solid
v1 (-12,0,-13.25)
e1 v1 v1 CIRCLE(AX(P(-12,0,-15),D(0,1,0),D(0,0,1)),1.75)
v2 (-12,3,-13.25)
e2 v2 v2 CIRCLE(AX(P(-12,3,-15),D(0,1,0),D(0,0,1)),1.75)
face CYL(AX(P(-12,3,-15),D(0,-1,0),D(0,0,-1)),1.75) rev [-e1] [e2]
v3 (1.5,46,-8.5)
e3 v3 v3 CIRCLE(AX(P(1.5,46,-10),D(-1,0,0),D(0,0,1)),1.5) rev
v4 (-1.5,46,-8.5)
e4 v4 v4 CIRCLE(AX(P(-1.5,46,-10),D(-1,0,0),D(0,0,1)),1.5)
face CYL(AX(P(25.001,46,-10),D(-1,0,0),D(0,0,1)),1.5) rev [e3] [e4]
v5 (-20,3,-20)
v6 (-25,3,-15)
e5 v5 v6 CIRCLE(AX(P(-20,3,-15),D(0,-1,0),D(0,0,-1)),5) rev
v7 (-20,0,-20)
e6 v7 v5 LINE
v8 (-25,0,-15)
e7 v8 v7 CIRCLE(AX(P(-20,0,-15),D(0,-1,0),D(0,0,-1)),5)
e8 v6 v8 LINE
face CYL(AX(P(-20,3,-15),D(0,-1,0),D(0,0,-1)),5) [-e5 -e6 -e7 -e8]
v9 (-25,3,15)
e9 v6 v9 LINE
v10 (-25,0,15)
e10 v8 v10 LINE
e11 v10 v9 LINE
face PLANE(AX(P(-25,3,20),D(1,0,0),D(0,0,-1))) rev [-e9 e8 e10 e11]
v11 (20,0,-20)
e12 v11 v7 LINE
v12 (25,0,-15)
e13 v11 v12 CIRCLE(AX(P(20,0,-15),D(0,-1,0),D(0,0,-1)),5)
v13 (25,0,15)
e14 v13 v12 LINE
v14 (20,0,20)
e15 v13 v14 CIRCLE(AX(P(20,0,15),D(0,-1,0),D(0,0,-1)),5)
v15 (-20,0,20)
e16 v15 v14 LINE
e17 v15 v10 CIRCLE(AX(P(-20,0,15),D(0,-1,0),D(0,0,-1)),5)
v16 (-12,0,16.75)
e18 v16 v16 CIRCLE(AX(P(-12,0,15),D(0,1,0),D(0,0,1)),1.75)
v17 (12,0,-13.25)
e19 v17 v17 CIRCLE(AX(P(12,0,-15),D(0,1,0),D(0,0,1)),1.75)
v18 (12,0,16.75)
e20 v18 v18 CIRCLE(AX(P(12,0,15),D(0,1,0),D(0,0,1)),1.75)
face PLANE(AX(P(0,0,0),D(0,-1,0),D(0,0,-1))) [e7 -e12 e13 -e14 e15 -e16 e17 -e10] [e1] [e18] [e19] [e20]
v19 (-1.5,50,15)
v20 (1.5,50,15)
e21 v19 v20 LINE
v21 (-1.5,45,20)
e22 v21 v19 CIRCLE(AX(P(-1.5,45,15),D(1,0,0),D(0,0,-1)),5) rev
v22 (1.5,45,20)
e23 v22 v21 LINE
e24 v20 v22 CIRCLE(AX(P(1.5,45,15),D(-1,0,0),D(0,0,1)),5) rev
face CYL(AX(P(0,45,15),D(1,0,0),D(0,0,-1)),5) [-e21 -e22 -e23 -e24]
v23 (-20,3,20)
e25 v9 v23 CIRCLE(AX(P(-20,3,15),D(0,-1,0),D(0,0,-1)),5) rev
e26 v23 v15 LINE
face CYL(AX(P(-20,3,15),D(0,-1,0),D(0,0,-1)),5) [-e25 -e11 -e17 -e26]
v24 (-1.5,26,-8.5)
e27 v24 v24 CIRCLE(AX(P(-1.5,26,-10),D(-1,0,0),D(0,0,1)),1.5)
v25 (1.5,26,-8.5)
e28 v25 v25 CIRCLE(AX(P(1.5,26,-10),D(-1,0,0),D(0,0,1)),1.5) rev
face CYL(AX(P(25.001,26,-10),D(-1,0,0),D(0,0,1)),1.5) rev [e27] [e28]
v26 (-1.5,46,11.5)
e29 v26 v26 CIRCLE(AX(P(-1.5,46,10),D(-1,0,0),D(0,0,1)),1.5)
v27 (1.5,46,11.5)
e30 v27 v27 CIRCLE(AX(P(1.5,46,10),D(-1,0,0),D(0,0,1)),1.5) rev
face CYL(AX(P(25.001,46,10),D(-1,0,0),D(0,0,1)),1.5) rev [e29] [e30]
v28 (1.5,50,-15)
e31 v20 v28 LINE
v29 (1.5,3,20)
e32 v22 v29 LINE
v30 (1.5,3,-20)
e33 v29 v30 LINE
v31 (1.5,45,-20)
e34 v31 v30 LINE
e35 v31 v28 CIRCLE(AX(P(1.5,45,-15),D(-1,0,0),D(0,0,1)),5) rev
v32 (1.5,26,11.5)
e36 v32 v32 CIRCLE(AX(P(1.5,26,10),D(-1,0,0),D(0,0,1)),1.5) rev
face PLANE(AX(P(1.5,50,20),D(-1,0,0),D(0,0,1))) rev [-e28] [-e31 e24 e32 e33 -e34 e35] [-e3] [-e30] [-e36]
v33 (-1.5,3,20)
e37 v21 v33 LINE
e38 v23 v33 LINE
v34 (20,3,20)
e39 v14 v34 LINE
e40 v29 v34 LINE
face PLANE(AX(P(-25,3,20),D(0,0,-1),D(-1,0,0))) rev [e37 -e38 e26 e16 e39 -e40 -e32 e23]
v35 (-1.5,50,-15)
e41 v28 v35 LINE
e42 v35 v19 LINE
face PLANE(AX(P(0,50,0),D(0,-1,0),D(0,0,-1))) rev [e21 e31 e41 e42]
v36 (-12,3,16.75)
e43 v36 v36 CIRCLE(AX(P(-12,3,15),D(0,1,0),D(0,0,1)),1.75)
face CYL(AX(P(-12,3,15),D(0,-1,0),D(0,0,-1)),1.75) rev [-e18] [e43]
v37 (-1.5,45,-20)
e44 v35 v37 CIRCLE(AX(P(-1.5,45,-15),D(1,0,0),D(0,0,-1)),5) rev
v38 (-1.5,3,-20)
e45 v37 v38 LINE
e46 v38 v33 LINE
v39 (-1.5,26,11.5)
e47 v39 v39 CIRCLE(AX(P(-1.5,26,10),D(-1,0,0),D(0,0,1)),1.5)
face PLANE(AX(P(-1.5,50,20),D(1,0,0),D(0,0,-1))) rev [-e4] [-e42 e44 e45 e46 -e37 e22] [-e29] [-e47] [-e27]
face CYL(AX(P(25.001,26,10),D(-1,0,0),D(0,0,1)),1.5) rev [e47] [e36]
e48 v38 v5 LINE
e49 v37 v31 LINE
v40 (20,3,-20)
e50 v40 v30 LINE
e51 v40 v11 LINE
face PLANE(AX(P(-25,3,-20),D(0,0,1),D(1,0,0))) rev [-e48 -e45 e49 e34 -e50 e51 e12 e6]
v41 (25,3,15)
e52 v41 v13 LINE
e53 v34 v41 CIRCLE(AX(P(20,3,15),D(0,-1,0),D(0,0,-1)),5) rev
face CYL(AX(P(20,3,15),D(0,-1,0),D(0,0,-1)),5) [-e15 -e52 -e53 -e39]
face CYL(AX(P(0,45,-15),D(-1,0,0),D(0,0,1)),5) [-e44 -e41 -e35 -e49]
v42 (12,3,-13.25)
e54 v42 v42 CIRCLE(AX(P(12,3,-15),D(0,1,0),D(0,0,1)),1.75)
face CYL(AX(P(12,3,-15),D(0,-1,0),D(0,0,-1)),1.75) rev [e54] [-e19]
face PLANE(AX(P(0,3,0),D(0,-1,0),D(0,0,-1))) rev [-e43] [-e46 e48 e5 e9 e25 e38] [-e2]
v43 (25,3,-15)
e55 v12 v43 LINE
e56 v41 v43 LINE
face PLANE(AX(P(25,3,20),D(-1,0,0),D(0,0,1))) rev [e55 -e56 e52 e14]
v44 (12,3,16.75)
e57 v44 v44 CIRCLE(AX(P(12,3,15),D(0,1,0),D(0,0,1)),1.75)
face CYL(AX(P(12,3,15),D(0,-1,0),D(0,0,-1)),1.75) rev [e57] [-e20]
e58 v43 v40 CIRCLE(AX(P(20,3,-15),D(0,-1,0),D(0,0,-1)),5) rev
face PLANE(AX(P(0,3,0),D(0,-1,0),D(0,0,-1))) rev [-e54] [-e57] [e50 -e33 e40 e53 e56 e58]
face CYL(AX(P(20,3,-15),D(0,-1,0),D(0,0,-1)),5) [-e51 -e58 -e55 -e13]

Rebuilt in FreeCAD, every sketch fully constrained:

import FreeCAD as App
import Part
import Sketcher


def edges_at(feature, points):
    """Names of the edges that pass closest to the given points."""
    edges = feature.Shape.Edges
    near = lambda p: min(range(len(edges)), key=lambda i: edges[i].distToShape(Part.Vertex(*p))[0])
    return sorted({f"Edge{near(p) + 1}" for p in points})


def add_polygon(sketch, points):
    """Adds a closed chain of lines whose ends are joined by coincident constraints."""
    first, n = sketch.GeometryCount, len(points)
    for a, b in zip(points, points[1:] + points[:1]):
        sketch.addGeometry(Part.LineSegment(App.Vector(*a, 0), App.Vector(*b, 0)), False)
    for i in range(n):
        sketch.addConstraint(Sketcher.Constraint("Coincident", first + i, 2, first + (i + 1) % n, 1))

doc = App.newDocument("Part")
body = doc.addObject("PartDesign::Body", "Body")

# Sketch on XZ plane
sketch1 = body.newObject("Sketcher::SketchObject", "Sketch")
sketch1.AttachmentSupport = (doc.getObject("XZ_Plane"), [""])
sketch1.MapMode = "FlatFace"
add_polygon(sketch1, [(-25, -20), (-25, 20), (25, 20), (25, -20)])  # lines 0-3
sketch1.addGeometry(Part.Circle(App.Vector(-12, 15, 0), App.Vector(0, 0, 1), 1.8), False)  # 4
sketch1.addGeometry(Part.Circle(App.Vector(12, 15, 0), App.Vector(0, 0, 1), 1.8), False)  # 5
sketch1.addGeometry(Part.Circle(App.Vector(-12, -15, 0), App.Vector(0, 0, 1), 1.8), False)  # 6
sketch1.addGeometry(Part.Circle(App.Vector(12, -15, 0), App.Vector(0, 0, 1), 1.8), False)  # 7
sketch1.addConstraint([
    Sketcher.Constraint("Vertical", 0),
    Sketcher.Constraint("Horizontal", 1),
    Sketcher.Constraint("Vertical", 2),
    Sketcher.Constraint("Horizontal", 3),
    Sketcher.Constraint("Equal", 4, 5),
    Sketcher.Constraint("Equal", 5, 6),
    Sketcher.Constraint("Equal", 6, 7),
    Sketcher.Constraint("Symmetric", 5, 3, 6, 3, -1, 1),
    Sketcher.Constraint("Symmetric", 4, 3, 7, 3, -1, 1),
    Sketcher.Constraint("Symmetric", 0, 2, 2, 2, -1, 1),
    Sketcher.Constraint("Symmetric", 4, 3, 5, 3, -2),
    Sketcher.Constraint("Diameter", 4, 3.5),
    Sketcher.Constraint("DistanceX", 1, 1, 1, 2, 50.0),
    Sketcher.Constraint("DistanceY", 0, 1, 0, 2, 40.0),
    Sketcher.Constraint("DistanceX", 4, 3, -1, 1, 12.0),
    Sketcher.Constraint("DistanceY", -1, 1, 4, 3, 15.0),
])
pad1 = body.newObject("PartDesign::Pad", "Pad")
pad1.Profile = sketch1
pad1.Length = 3
pad1.Reversed = True
doc.recompute()

fillet = body.newObject("PartDesign::Fillet", "Fillet")
fillet.Base = (pad1, edges_at(pad1, [
    (25, 1.5, 20),
    (-25, 1.5, 20),
    (-25, 1.5, -20),
    (25, 1.5, -20),
]))
fillet.Radius = 5

# Sketch on XZ plane
sketch2 = body.newObject("Sketcher::SketchObject", "Sketch001")
sketch2.AttachmentSupport = (doc.getObject("XZ_Plane"), [""])
sketch2.MapMode = "FlatFace"
sketch2.AttachmentOffset = App.Placement(App.Vector(0, 0, -3), App.Rotation())
add_polygon(sketch2, [(-1.5, -20), (-1.5, 20), (1.5, 20), (1.5, -20)])  # lines 0-3
sketch2.addConstraint([
    Sketcher.Constraint("Vertical", 0),
    Sketcher.Constraint("Horizontal", 1),
    Sketcher.Constraint("Vertical", 2),
    Sketcher.Constraint("Horizontal", 3),
    Sketcher.Constraint("Symmetric", 0, 2, 2, 2, -1, 1),
    Sketcher.Constraint("DistanceX", 1, 1, 1, 2, 3.0),
    Sketcher.Constraint("DistanceY", 0, 1, 0, 2, 40.0),
])
pad2 = body.newObject("PartDesign::Pad", "Pad001")
pad2.Profile = sketch2
pad2.Length = 47
pad2.Reversed = True

# Sketch on YZ plane
sketch3 = body.newObject("Sketcher::SketchObject", "Sketch002")
sketch3.AttachmentSupport = (doc.getObject("YZ_Plane"), [""])
sketch3.MapMode = "FlatFace"
sketch3.AttachmentOffset = App.Placement(App.Vector(0, 0, -1.5), App.Rotation())
sketch3.addGeometry(Part.Circle(App.Vector(46, -10, 0), App.Vector(0, 0, 1), 1.5), False)
sketch3.addConstraint([
    Sketcher.Constraint("Diameter", 0, 3.0),
    Sketcher.Constraint("DistanceX", -1, 1, 0, 3, 46.0),
    Sketcher.Constraint("DistanceY", 0, 3, -1, 1, 10.0),
])
pocket1 = body.newObject("PartDesign::Pocket", "Pocket")
pocket1.Profile = sketch3
pocket1.Type = "UpToFirst"
pocket1.Reversed = True

# Sketch on YZ plane
sketch4 = body.newObject("Sketcher::SketchObject", "Sketch003")
sketch4.AttachmentSupport = (doc.getObject("YZ_Plane"), [""])
sketch4.MapMode = "FlatFace"
sketch4.AttachmentOffset = App.Placement(App.Vector(0, 0, -1.5), App.Rotation())
sketch4.addGeometry(Part.Circle(App.Vector(46, 10, 0), App.Vector(0, 0, 1), 1.5), False)
sketch4.addConstraint([
    Sketcher.Constraint("Diameter", 0, 3.0),
    Sketcher.Constraint("DistanceX", -1, 1, 0, 3, 46.0),
    Sketcher.Constraint("DistanceY", -1, 1, 0, 3, 10.0),
])
pocket2 = body.newObject("PartDesign::Pocket", "Pocket001")
pocket2.Profile = sketch4
pocket2.Type = "UpToFirst"
pocket2.Reversed = True

# Sketch on YZ plane
sketch5 = body.newObject("Sketcher::SketchObject", "Sketch004")
sketch5.AttachmentSupport = (doc.getObject("YZ_Plane"), [""])
sketch5.MapMode = "FlatFace"
sketch5.AttachmentOffset = App.Placement(App.Vector(0, 0, -1.5), App.Rotation())
sketch5.addGeometry(Part.Circle(App.Vector(26, 10, 0), App.Vector(0, 0, 1), 1.5), False)
sketch5.addConstraint([
    Sketcher.Constraint("Diameter", 0, 3.0),
    Sketcher.Constraint("DistanceX", -1, 1, 0, 3, 26.0),
    Sketcher.Constraint("DistanceY", -1, 1, 0, 3, 10.0),
])
pocket3 = body.newObject("PartDesign::Pocket", "Pocket002")
pocket3.Profile = sketch5
pocket3.Type = "UpToFirst"
pocket3.Reversed = True

# Sketch on YZ plane
sketch6 = body.newObject("Sketcher::SketchObject", "Sketch005")
sketch6.AttachmentSupport = (doc.getObject("YZ_Plane"), [""])
sketch6.MapMode = "FlatFace"
sketch6.AttachmentOffset = App.Placement(App.Vector(0, 0, -1.5), App.Rotation())
sketch6.addGeometry(Part.Circle(App.Vector(26, -10, 0), App.Vector(0, 0, 1), 1.5), False)
sketch6.addConstraint([
    Sketcher.Constraint("Diameter", 0, 3.0),
    Sketcher.Constraint("DistanceX", -1, 1, 0, 3, 26.0),
    Sketcher.Constraint("DistanceY", 0, 3, -1, 1, 10.0),
])
pocket4 = body.newObject("PartDesign::Pocket", "Pocket003")
pocket4.Profile = sketch6
pocket4.Type = "UpToFirst"
pocket4.Reversed = True
doc.recompute()

fillet2 = body.newObject("PartDesign::Fillet", "Fillet001")
fillet2.Base = (pocket4, edges_at(pocket4, [(0, 50, -20), (0, 50, 20)]))
fillet2.Radius = 5

doc.recompute()
